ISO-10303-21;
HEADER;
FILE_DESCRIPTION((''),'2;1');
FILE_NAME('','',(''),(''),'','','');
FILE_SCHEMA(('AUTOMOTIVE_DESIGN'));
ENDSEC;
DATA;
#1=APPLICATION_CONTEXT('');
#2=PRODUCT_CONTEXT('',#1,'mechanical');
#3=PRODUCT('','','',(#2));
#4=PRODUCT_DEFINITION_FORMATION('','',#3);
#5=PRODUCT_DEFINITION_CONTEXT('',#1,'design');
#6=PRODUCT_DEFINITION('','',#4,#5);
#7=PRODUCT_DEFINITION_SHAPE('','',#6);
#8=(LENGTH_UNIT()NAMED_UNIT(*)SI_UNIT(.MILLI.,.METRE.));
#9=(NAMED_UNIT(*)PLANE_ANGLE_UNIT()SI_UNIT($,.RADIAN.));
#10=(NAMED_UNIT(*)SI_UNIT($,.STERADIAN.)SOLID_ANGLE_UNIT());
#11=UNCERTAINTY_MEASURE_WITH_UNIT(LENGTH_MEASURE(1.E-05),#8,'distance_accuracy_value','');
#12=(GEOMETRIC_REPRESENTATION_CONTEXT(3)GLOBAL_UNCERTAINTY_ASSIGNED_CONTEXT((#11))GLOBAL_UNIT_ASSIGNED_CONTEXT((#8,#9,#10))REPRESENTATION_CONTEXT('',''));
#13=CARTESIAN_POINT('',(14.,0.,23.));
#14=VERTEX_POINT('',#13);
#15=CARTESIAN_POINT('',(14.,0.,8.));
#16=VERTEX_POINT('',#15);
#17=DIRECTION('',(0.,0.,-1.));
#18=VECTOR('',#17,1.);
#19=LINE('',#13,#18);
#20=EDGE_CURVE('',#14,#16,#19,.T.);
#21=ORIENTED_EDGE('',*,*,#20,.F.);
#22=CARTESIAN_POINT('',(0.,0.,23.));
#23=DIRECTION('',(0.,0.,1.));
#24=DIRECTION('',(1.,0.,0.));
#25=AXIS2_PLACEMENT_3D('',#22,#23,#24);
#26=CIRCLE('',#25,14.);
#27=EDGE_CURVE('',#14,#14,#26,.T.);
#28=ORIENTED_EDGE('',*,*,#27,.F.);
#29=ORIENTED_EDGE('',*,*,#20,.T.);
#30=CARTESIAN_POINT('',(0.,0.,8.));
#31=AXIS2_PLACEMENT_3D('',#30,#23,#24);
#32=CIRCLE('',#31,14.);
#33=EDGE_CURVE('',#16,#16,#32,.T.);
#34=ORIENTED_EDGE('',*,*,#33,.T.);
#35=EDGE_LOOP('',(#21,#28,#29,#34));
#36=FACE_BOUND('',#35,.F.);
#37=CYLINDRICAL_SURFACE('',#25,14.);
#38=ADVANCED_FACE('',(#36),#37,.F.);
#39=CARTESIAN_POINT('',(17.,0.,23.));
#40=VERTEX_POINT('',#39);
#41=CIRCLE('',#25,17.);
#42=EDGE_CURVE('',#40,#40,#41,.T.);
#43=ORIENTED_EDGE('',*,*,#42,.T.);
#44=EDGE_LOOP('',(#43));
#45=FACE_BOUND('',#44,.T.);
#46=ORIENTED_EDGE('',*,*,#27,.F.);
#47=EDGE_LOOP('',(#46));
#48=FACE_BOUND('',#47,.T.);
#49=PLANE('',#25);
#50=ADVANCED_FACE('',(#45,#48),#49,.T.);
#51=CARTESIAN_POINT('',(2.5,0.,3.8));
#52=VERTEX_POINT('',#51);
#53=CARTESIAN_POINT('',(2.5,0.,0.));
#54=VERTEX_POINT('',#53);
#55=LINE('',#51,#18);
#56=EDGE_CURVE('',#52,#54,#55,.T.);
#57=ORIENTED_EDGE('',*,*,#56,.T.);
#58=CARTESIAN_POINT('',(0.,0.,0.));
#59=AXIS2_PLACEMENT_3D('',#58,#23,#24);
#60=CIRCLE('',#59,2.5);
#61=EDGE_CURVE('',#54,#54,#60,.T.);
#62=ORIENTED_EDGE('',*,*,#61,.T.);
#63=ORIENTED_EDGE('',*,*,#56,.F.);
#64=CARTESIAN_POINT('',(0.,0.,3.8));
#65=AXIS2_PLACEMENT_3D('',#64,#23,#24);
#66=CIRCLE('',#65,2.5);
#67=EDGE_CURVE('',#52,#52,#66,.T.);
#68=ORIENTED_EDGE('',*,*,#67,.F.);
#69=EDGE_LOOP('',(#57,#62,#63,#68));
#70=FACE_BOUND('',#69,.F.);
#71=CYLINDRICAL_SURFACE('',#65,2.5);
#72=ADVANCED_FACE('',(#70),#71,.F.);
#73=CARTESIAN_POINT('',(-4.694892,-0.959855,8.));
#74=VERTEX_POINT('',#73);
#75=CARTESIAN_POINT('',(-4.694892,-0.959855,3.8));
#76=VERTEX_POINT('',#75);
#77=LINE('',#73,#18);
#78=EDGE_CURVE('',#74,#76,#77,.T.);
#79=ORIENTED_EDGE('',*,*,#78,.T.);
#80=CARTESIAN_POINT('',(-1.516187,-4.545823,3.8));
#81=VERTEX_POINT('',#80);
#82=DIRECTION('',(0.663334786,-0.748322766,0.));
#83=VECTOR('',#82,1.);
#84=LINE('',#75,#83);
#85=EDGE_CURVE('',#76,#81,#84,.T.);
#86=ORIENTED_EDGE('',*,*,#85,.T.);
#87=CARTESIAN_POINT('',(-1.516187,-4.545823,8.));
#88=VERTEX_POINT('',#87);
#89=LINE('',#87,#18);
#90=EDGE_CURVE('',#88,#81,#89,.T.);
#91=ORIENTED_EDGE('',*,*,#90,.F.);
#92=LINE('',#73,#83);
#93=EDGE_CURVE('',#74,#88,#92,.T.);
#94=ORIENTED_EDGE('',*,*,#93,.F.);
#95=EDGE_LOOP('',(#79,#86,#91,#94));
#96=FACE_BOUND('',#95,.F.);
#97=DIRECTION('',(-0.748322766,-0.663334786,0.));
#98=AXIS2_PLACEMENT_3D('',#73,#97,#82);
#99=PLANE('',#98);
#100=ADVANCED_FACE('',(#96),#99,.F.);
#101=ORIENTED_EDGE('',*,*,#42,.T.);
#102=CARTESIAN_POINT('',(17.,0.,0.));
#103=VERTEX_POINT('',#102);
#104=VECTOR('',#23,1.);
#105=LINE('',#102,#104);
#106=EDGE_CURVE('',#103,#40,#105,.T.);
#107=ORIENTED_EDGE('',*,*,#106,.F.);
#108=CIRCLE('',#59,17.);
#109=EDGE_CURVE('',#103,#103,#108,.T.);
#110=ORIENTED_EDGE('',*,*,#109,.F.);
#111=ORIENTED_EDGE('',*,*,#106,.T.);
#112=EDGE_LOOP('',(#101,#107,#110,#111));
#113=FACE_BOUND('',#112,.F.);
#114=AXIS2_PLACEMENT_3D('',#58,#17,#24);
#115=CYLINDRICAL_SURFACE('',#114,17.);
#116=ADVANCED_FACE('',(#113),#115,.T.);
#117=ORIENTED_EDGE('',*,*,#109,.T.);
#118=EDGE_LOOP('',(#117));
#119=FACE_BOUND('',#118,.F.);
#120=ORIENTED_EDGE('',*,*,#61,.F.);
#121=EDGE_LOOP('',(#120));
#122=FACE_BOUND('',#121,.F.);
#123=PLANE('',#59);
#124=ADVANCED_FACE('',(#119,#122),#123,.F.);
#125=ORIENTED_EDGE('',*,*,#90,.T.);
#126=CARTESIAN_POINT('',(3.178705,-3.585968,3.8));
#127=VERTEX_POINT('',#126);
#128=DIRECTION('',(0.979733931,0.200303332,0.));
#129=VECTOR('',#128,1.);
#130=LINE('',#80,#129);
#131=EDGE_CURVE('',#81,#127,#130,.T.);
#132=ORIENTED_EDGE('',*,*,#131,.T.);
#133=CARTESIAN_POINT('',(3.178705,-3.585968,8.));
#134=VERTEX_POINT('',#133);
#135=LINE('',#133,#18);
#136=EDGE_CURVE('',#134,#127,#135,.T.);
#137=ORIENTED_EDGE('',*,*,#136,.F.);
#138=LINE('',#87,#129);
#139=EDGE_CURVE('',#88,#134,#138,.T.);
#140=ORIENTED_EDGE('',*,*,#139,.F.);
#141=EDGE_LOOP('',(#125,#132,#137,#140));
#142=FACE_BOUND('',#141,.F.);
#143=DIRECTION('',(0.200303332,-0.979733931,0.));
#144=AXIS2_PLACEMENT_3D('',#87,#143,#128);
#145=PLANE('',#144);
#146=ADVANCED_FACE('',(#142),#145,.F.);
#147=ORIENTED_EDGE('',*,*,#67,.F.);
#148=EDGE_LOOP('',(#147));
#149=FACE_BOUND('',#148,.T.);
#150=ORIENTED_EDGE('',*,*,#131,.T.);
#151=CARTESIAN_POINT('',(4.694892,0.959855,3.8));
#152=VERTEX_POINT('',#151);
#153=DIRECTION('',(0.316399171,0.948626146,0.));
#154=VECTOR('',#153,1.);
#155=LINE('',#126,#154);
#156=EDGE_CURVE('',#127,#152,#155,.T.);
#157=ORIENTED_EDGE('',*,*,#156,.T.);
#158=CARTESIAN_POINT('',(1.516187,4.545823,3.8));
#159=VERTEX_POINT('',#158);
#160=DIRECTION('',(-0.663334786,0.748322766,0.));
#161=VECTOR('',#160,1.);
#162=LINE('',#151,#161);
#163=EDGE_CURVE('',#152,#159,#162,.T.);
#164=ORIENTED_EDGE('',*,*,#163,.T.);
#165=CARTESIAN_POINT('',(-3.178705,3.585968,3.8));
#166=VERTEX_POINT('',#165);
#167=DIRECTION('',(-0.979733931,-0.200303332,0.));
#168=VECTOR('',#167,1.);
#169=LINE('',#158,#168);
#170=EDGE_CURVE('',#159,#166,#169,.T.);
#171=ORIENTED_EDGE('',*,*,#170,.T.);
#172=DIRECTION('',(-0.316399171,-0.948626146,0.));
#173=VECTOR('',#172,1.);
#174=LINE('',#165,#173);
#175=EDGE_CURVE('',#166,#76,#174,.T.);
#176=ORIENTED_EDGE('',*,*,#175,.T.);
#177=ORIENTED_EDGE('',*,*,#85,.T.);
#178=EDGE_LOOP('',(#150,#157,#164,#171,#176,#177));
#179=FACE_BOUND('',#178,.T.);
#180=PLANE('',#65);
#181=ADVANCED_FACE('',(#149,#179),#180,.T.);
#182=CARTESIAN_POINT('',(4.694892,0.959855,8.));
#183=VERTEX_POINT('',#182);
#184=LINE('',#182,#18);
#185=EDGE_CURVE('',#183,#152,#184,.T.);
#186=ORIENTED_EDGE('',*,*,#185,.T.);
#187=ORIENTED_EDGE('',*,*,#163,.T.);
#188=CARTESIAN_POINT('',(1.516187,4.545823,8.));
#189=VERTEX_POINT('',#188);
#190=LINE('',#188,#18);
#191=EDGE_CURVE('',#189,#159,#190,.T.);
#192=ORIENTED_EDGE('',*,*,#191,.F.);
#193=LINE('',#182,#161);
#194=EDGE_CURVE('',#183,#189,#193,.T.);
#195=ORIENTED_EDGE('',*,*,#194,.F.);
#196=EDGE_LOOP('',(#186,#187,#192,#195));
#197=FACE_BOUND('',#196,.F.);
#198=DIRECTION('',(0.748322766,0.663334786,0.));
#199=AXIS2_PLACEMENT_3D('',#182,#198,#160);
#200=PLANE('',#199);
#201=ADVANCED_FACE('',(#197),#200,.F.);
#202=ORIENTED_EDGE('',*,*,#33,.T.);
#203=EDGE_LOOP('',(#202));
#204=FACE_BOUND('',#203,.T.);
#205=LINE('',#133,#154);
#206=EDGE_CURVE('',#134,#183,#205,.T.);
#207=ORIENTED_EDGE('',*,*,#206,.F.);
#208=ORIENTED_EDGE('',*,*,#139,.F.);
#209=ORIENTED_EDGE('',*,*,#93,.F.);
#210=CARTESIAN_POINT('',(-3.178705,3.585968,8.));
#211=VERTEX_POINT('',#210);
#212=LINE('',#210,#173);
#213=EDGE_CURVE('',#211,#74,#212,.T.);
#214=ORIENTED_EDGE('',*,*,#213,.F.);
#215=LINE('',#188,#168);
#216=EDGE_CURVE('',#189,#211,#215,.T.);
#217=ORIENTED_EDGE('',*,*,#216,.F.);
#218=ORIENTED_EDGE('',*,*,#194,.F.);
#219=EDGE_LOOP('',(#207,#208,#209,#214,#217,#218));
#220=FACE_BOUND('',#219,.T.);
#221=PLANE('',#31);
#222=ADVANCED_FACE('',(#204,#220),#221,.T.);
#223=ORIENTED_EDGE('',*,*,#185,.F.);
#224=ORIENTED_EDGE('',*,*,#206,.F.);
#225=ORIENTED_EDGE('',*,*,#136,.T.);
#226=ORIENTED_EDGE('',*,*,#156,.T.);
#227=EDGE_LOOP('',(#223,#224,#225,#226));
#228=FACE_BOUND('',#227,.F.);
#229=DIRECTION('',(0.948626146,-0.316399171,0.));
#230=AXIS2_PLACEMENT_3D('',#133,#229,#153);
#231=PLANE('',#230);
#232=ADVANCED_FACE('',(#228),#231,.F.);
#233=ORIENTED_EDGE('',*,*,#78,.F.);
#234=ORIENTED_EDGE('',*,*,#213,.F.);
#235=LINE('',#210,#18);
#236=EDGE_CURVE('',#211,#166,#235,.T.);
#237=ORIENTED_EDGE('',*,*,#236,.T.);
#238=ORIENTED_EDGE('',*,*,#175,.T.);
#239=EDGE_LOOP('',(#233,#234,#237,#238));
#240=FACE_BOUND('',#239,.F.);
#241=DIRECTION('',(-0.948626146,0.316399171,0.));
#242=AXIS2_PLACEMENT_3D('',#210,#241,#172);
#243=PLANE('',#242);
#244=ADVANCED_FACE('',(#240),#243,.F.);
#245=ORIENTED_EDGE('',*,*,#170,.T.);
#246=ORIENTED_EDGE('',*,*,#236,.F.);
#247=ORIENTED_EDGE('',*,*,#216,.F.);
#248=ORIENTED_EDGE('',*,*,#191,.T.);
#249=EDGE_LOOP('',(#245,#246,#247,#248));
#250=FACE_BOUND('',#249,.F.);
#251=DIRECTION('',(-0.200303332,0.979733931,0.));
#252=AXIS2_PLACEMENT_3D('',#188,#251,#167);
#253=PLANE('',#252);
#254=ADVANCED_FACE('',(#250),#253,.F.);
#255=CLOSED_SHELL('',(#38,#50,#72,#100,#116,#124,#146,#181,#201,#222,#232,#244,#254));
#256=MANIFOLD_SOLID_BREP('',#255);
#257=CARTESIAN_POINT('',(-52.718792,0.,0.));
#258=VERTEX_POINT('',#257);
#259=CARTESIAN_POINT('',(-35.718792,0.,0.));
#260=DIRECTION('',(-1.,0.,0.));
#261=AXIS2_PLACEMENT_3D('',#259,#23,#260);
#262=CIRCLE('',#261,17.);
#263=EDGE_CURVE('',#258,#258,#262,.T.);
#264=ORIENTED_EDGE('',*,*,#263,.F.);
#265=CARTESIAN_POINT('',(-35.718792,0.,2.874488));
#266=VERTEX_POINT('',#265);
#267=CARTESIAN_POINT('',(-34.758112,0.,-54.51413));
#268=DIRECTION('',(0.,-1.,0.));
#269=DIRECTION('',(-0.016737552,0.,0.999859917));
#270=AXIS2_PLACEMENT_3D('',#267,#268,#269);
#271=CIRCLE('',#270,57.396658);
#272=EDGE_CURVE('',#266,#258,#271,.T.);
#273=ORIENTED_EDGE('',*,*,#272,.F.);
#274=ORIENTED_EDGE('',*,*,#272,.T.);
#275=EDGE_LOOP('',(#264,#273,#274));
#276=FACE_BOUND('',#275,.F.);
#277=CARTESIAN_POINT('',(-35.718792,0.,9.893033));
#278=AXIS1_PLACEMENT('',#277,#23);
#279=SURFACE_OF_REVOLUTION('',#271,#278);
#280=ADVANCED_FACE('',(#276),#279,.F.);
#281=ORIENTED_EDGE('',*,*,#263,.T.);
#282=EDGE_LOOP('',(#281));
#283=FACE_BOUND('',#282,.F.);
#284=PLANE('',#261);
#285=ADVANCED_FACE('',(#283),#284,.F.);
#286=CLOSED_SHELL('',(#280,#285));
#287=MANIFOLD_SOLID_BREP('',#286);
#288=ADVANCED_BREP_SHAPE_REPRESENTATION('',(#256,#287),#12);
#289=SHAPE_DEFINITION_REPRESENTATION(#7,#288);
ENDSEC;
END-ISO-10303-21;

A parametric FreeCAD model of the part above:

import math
import FreeCAD as App
import Part
import Sketcher
Q = App.Units.Quantity


def add_polygon(sketch, points):
    """Adds a closed chain of lines whose ends are joined by coincident constraints."""
    first, n = sketch.GeometryCount, len(points)
    for a, b in zip(points, points[1:] + points[:1]):
        sketch.addGeometry(Part.LineSegment(App.Vector(*a, 0), App.Vector(*b, 0)), False)
    for i in range(n):
        sketch.addConstraint(Sketcher.Constraint("Coincident", first + i, 2, first + (i + 1) % n, 1))

doc = App.newDocument("Part")
body = doc.addObject("PartDesign::Body", "Body")

sketch1 = doc.addObject("Sketcher::SketchObject", "Sketch")
body.addObject(sketch1)
sketch1.AttachmentSupport = (doc.XY_Plane, [""])
sketch1.MapMode = "FlatFace"
sketch1.addGeometry(Part.Circle(App.Vector(0, 0, 0), App.Vector(0, 0, 1), 17), False)
sketch1.addConstraint(Sketcher.Constraint("Coincident", 0, 3, -1, 1))
sketch1.addConstraint(Sketcher.Constraint("Diameter", 0, Q("34 mm")))
pad1 = doc.addObject("PartDesign::Pad", "Pad")
body.addObject(pad1)
pad1.Profile = sketch1
pad1.Length = 23

sketch2 = doc.addObject("Sketcher::SketchObject", "Sketch001")
body.addObject(sketch2)
sketch2.AttachmentSupport = (doc.XY_Plane, [""])
sketch2.MapMode = "FlatFace"
sketch2.AttachmentOffset = App.Placement(App.Vector(0, 0, 23), App.Rotation())
sketch2.addGeometry(Part.Circle(App.Vector(0, 0, 0), App.Vector(0, 0, 1), 14), False)
sketch2.addConstraint(Sketcher.Constraint("Coincident", 0, 3, -1, 1))
sketch2.addConstraint(Sketcher.Constraint("Diameter", 0, Q("28 mm")))
pocket1 = doc.addObject("PartDesign::Pocket", "Pocket")
body.addObject(pocket1)
pocket1.Profile = sketch2
pocket1.Length = 15

sketch3 = doc.addObject("Sketcher::SketchObject", "Sketch002")
body.addObject(sketch3)
sketch3.AttachmentSupport = (doc.XY_Plane, [""])
sketch3.MapMode = "FlatFace"
sketch3.AttachmentOffset = App.Placement(App.Vector(0, 0, 8), App.Rotation())
add_polygon(sketch3, [(3.2, -3.6), (4.7, 1), (1.5, 4.5), (-3.2, 3.6), (-4.7, -1), (-1.5, -4.5)])
sketch3.addConstraint(Sketcher.Constraint("Symmetric", 0, 2, 3, 2, -1, 1))
sketch3.addConstraint(Sketcher.Constraint("Symmetric", 1, 2, 4, 2, -1, 1))
sketch3.addConstraint(Sketcher.Constraint("Symmetric", 2, 2, 5, 2, -1, 1))
sketch3.addConstraint(Sketcher.Constraint("Equal", 0, 1))
sketch3.addConstraint(Sketcher.Constraint("Equal", 1, 2))
sketch3.addConstraint(Sketcher.Constraint("DistanceY", 0, 2, 1, 2, Q("3.585968 mm")))
sketch3.addConstraint(Sketcher.Constraint("DistanceX", 2, 2, 1, 2, Q("4.694892 mm")))
sketch3.addConstraint(Sketcher.Constraint("DistanceX", 3, 2, 1, 2, Q("6.211079 mm")))
sketch3.addConstraint(Sketcher.Constraint("DistanceY", 3, 2, 1, 2, Q("5.505678 mm")))
pocket2 = doc.addObject("PartDesign::Pocket", "Pocket001")
body.addObject(pocket2)
pocket2.Profile = sketch3
pocket2.Length = 4.2

sketch4 = doc.addObject("Sketcher::SketchObject", "Sketch003")
body.addObject(sketch4)
sketch4.AttachmentSupport = (doc.XY_Plane, [""])
sketch4.MapMode = "FlatFace"
sketch4.AttachmentOffset = App.Placement(App.Vector(0, 0, 3.8), App.Rotation())
sketch4.addGeometry(Part.Circle(App.Vector(0, 0, 0), App.Vector(0, 0, 1), 2.5), False)
sketch4.addConstraint(Sketcher.Constraint("Coincident", 0, 3, -1, 1))
sketch4.addConstraint(Sketcher.Constraint("Diameter", 0, Q("5 mm")))
pocket3 = doc.addObject("PartDesign::Pocket", "Pocket002")
body.addObject(pocket3)
pocket3.Profile = sketch4
pocket3.Length = 25
body2 = doc.addObject("PartDesign::Body", "Body001")

sketch5 = doc.addObject("Sketcher::SketchObject", "Sketch004")
body2.addObject(sketch5)
sketch5.AttachmentSupport = (doc.getObject("XZ_Plane001"), [""])
sketch5.MapMode = "FlatFace"
sketch5.addGeometry(Part.LineSegment(App.Vector(-52.7, 0, 0), App.Vector(-35.7, 0, 0)), False)
sketch5.addGeometry(Part.LineSegment(App.Vector(-35.7, 0, 0), App.Vector(-35.7, 2.9, 0)), False)
sketch5.addGeometry(Part.ArcOfCircle(Part.Circle(App.Vector(-34.8, -54.5, 0), App.Vector(0, 0, 1), 57.4), math.radians(90.96), math.radians(108.24)), False)
sketch5.addGeometry(Part.LineSegment(App.Vector(-35.7, -54.5, 0), App.Vector(-35.7, 2.9, 0)), True)
sketch5.addConstraint(Sketcher.Constraint("Coincident", 0, 2, 1, 1))
sketch5.addConstraint(Sketcher.Constraint("Coincident", 1, 2, 2, 1))
sketch5.addConstraint(Sketcher.Constraint("Coincident", 2, 2, 0, 1))
sketch5.addConstraint(Sketcher.Constraint("Horizontal", 0))
sketch5.addConstraint(Sketcher.Constraint("Vertical", 1))
sketch5.addConstraint(Sketcher.Constraint("Vertical", 3))
sketch5.addConstraint(Sketcher.Constraint("Coincident", 3, 2, 1, 2))
sketch5.addConstraint(Sketcher.Constraint("PointOnObject", 0, 2, -1))
sketch5.addConstraint(Sketcher.Constraint("Horizontal", 2, 3, 3, 1))
sketch5.addConstraint(Sketcher.Constraint("DistanceX", 0, 1, 0, 2, Q("17 mm")))
sketch5.addConstraint(Sketcher.Constraint("Radius", 2, Q("57.396658 mm")))
sketch5.addConstraint(Sketcher.Constraint("DistanceY", 1, 1, 1, 2, Q("2.874488 mm")))
sketch5.addConstraint(Sketcher.Constraint("DistanceX", 2, 2, -1, 1, Q("52.718792 mm")))
revolution = doc.addObject("PartDesign::Revolution", "Revolution")
body2.addObject(revolution)
revolution.Profile = sketch5
revolution.ReferenceAxis = (sketch5, ["Axis0"])
revolution.Angle = 360

doc.recompute()
